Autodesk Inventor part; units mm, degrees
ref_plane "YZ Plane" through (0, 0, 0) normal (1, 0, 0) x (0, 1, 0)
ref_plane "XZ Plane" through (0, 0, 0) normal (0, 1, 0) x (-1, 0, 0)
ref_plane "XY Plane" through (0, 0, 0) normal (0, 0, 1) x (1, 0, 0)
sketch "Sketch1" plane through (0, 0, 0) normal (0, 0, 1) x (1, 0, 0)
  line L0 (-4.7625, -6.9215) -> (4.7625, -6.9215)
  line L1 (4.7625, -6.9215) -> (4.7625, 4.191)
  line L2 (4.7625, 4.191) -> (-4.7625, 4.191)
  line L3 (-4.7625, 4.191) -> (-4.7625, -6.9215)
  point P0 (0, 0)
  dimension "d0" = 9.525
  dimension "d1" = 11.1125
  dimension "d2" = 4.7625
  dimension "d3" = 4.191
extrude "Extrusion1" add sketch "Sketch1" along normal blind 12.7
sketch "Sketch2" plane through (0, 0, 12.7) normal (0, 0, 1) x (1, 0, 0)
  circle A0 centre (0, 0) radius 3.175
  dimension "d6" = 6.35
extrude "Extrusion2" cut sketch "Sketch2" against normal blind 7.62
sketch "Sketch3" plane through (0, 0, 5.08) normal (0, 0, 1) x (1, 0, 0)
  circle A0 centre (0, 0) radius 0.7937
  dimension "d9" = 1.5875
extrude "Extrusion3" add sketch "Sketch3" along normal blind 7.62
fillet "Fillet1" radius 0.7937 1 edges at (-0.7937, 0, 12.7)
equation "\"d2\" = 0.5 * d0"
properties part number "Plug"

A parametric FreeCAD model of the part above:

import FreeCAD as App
import Part
import Sketcher

V = App.Vector
Q = App.Units.Quantity


def edges_at(feature, points):
    """Names of the edges that pass closest to the given points."""
    edges = feature.Shape.Edges
    near = lambda p: min(range(len(edges)), key=lambda i: edges[i].distToShape(Part.Vertex(*p))[0])
    return sorted({f"Edge{near(p) + 1}" for p in points})


def add_polygon(sketch, points):
    """Adds a closed chain of lines whose ends are joined by coincident constraints."""
    first, n = sketch.GeometryCount, len(points)
    for a, b in zip(points, points[1:] + points[:1]):
        sketch.addGeometry(Part.LineSegment(App.Vector(*a, 0), App.Vector(*b, 0)), False)
    for i in range(n):
        sketch.addConstraint(Sketcher.Constraint("Coincident", first + i, 2, first + (i + 1) % n, 1))

doc = App.newDocument("Part")
body = doc.addObject("PartDesign::Body", "Body")

# Sketch on XY plane
sketch1 = body.newObject("Sketcher::SketchObject", "Sketch")
sketch1.AttachmentSupport = (doc.getObject("XY_Plane"), [""])
sketch1.MapMode = "FlatFace"
add_polygon(sketch1, [(-5, 4), (-5, -7), (5, -7), (5, 4)])  # lines 0-3
sketch1.addConstraint([
    Sketcher.Constraint("Vertical", 0),
    Sketcher.Constraint("Horizontal", 1),
    Sketcher.Constraint("Vertical", 2),
    Sketcher.Constraint("Horizontal", 3),
    Sketcher.Constraint("DistanceX", 1, 1, 1, 2, Q("0.375 in")),
    Sketcher.Constraint("DistanceY", 0, 2, 0, 1, Q("0.4375 in")),
    Sketcher.Constraint("DistanceX", 0, 2, -1, 1, Q("0.1875 in")),
    Sketcher.Constraint("DistanceY", -1, 1, 2, 2, Q("0.165 in")),
])
pad1 = body.newObject("PartDesign::Pad", "Pad")
pad1.Profile = sketch1
pad1.Length = Q("0.5 in")

# Sketch on XY plane
sketch2 = body.newObject("Sketcher::SketchObject", "Sketch001")
sketch2.AttachmentSupport = (doc.getObject("XY_Plane"), [""])
sketch2.MapMode = "FlatFace"
sketch2.AttachmentOffset = App.Placement(V(0, 0, 0.5 * 25.4), App.Rotation())
sketch2.addGeometry(Part.Circle(V(0, 0, 0), V(0, 0, 1), 3.2), False)
sketch2.addConstraint([
    Sketcher.Constraint("Coincident", 0, 3, -1, 1),
    Sketcher.Constraint("Diameter", 0, Q("0.25 in")),
])
pocket1 = body.newObject("PartDesign::Pocket", "Pocket")
pocket1.Profile = sketch2
pocket1.Length = Q("0.3 in")

# Sketch on XY plane
sketch3 = body.newObject("Sketcher::SketchObject", "Sketch002")
sketch3.AttachmentSupport = (doc.getObject("XY_Plane"), [""])
sketch3.MapMode = "FlatFace"
sketch3.AttachmentOffset = App.Placement(V(0, 0, 0.2 * 25.4), App.Rotation())
sketch3.addGeometry(Part.Circle(V(0, 0, 0), V(0, 0, 1), 0.8), False)
sketch3.addConstraint([
    Sketcher.Constraint("Coincident", 0, 3, -1, 1),
    Sketcher.Constraint("Diameter", 0, Q("0.0625 in")),
])
pad2 = body.newObject("PartDesign::Pad", "Pad001")
pad2.Profile = sketch3
pad2.Length = Q("0.3 in")
doc.recompute()

fillet = body.newObject("PartDesign::Fillet", "Fillet")
fillet.Base = (pad2, edges_at(pad2, [(-0.794, 0, 12.7)]))
fillet.Radius = Q("0.031248 in")

doc.recompute()
